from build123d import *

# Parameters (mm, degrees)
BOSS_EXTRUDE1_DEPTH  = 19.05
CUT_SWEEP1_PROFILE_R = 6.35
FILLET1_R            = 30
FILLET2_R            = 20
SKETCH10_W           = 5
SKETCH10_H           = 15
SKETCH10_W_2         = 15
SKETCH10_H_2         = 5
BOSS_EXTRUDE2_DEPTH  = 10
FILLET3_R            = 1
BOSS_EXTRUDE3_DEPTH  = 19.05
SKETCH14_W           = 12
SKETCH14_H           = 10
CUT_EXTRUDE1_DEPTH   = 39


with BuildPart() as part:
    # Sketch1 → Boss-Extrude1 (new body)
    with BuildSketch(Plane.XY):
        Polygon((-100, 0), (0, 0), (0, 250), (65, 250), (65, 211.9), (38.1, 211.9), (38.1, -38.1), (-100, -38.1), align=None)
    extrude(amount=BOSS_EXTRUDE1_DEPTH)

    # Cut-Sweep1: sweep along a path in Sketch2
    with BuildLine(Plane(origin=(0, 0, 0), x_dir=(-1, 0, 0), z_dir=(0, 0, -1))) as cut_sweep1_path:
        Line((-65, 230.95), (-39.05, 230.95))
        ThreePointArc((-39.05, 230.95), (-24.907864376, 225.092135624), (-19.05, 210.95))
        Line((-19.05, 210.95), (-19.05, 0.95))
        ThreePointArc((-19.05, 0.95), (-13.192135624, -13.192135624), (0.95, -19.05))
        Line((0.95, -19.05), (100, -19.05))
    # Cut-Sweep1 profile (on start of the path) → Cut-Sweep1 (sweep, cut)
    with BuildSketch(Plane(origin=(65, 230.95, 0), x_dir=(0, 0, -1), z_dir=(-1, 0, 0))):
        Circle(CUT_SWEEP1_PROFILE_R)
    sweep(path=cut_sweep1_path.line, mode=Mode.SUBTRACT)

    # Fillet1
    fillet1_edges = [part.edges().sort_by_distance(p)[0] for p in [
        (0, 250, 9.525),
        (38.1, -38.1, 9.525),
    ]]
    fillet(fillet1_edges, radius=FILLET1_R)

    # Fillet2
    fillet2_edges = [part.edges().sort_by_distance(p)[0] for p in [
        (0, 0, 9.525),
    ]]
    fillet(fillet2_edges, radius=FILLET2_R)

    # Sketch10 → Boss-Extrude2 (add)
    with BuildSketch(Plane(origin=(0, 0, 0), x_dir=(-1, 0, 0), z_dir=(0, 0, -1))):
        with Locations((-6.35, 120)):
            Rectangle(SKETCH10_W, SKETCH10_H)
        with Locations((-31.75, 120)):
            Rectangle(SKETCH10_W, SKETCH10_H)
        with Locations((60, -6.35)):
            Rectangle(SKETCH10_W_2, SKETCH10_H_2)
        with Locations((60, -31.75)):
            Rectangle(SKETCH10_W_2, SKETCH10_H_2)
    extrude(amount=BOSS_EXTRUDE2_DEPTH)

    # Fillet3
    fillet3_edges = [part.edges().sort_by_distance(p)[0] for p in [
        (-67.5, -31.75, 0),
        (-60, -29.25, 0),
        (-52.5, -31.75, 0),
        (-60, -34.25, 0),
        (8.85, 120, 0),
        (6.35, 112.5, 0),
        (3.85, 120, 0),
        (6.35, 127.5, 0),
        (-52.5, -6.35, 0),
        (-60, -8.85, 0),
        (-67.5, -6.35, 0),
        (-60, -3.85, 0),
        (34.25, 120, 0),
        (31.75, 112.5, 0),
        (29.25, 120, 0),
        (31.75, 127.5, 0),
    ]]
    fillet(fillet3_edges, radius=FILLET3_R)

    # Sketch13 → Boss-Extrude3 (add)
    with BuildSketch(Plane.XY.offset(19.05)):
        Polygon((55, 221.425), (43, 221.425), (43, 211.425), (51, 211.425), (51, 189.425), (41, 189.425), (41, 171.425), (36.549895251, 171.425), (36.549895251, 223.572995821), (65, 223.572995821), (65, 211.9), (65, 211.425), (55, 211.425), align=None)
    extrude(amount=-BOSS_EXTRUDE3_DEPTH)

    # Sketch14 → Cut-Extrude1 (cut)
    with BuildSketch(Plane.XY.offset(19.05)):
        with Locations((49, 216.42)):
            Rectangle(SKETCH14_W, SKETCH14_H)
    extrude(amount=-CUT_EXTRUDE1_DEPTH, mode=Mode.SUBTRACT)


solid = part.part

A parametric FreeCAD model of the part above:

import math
import FreeCAD as App
import Part
import Sketcher


def edges_at(feature, points):
    """Names of the edges that pass closest to the given points."""
    edges = feature.Shape.Edges
    near = lambda p: min(range(len(edges)), key=lambda i: edges[i].distToShape(Part.Vertex(*p))[0])
    return sorted({f"Edge{near(p) + 1}" for p in points})


def add_polygon(sketch, points):
    """Adds a closed chain of lines whose ends are joined by coincident constraints."""
    first, n = sketch.GeometryCount, len(points)
    for a, b in zip(points, points[1:] + points[:1]):
        sketch.addGeometry(Part.LineSegment(App.Vector(*a, 0), App.Vector(*b, 0)), False)
    for i in range(n):
        sketch.addConstraint(Sketcher.Constraint("Coincident", first + i, 2, first + (i + 1) % n, 1))

doc = App.newDocument("Part")
params = doc.addObject("Spreadsheet::Sheet", "Params")
for row, (alias, value) in enumerate([
    ("sketch1_width", "100 mm"),
    ("sketch1_width2", "65 mm"),
    ("sketch1_height", "250 mm"),
    ("sketch1_width3", "138.1 mm"),
    ("sketch1_height2", "38.1 mm"),
    ("pad1_length", "19.05 mm"),
    ("sketch2_diameter", "12.7 mm"),
    ("sketch3_radius", "20 mm"),
    ("sketch3_height", "210 mm"),
    ("sketch3_width", "25.95 mm"),
    ("fillet_radius", "30 mm"),
    ("fillet2_radius", "20 mm"),
    ("sketch4_width", "5 mm"),
    ("sketch4_width2", "15 mm"),
    ("pad2_length", "10 mm"),
    ("fillet3_radius", "1 mm"),
    ("sketch5_width", "12 mm"),
    ("sketch5_width2", "10 mm"),
    ("sketch5_width3", "8 mm"),
    ("sketch5_height", "18 mm"),
    ("sketch5_height2", "22 mm"),
    ("pad3_length", "19.05 mm"),
    ("sketch6_width", "12 mm"),
    ("sketch6_height", "10 mm"),
    ("pocket1_length", "39 mm"),
], start=1):
    params.set(f"A{row}", alias)
    params.set(f"B{row}", "=" + value)
    params.setAlias(f"B{row}", alias)

body = doc.addObject("PartDesign::Body", "Body")

# Sketch on XY plane
sketch1 = body.newObject("Sketcher::SketchObject", "Sketch")
sketch1.AttachmentSupport = (doc.getObject("XY_Plane"), [""])
sketch1.MapMode = "FlatFace"
add_polygon(sketch1, [(0, 0), (-100, 0), (-100, -38), (38, -38), (38, 212), (65, 212), (65, 250), (0, 250)])  # lines 0-7
sketch1.addConstraint([
    Sketcher.Constraint("Horizontal", 0),
    Sketcher.Constraint("Vertical", 1),
    Sketcher.Constraint("Horizontal", 2),
    Sketcher.Constraint("Vertical", 3),
    Sketcher.Constraint("Horizontal", 4),
    Sketcher.Constraint("Vertical", 5),
    Sketcher.Constraint("Horizontal", 6),
    Sketcher.Constraint("Vertical", 7),
    Sketcher.Constraint("Coincident", 7, 2, -1, 1),
    Sketcher.Constraint("Equal", 1, 5),
    Sketcher.Constraint("DistanceX", 0, 2, 0, 1, 100.0),
    Sketcher.Constraint("DistanceX", 6, 2, 6, 1, 65.0),
    Sketcher.Constraint("DistanceY", 3, 1, 3, 2, 250.0),
    Sketcher.Constraint("DistanceX", 2, 1, 2, 2, 138.1),
    Sketcher.Constraint("DistanceY", 1, 2, 1, 1, 38.1),
])
sketch1.setExpression("Constraints[18]", "Params.sketch1_width")
sketch1.setExpression("Constraints[19]", "Params.sketch1_width2")
sketch1.setExpression("Constraints[20]", "Params.sketch1_height")
sketch1.setExpression("Constraints[21]", "Params.sketch1_width3")
sketch1.setExpression("Constraints[22]", "Params.sketch1_height2")
pad1 = body.newObject("PartDesign::Pad", "Pad")
pad1.Profile = sketch1
pad1.setExpression("Length", "Params.pad1_length")

# Sketch on YZ plane
sketch2 = body.newObject("Sketcher::SketchObject", "Sketch001")
sketch2.AttachmentSupport = (doc.getObject("YZ_Plane"), [""])
sketch2.MapMode = "FlatFace"
sketch2.AttachmentOffset = App.Placement(App.Vector(0, 0, 65), App.Rotation())
sketch2.addGeometry(Part.Circle(App.Vector(231, 0, 0), App.Vector(0, 0, 1), 6), False)
sketch2.addConstraint([
    Sketcher.Constraint("PointOnObject", 0, 3, -1),
    Sketcher.Constraint("Diameter", 0, 12.7),
    Sketcher.Constraint("DistanceX", -1, 1, 0, 3, 230.95),
])
sketch2.setExpression("Constraints[1]", "Params.sketch2_diameter")

# Sketch on XY plane
sketch3 = body.newObject("Sketcher::SketchObject", "Sketch002")
sketch3.AttachmentSupport = (doc.getObject("XY_Plane"), [""])
sketch3.MapMode = "FlatFace"
sketch3.addGeometry([
    Part.LineSegment(App.Vector(65, 231, 0), App.Vector(39, 231, 0)),  # 0
    Part.ArcOfCircle(Part.Circle(App.Vector(39, 211, 0), App.Vector(0, 0, 1), 20), math.radians(90), math.radians(180)),  # 1
    Part.LineSegment(App.Vector(19, 211, 0), App.Vector(19, 1, 0)),  # 2
    Part.ArcOfCircle(Part.Circle(App.Vector(-1, 1, 0), App.Vector(0, 0, 1), 20), math.radians(-90), math.radians(0)),  # 3
    Part.LineSegment(App.Vector(-1, -19, 0), App.Vector(-100, -19, 0)),  # 4
], False)
sketch3.addConstraint([
    Sketcher.Constraint("Tangent", 0, 2, 1, 1),
    Sketcher.Constraint("Tangent", 1, 2, 2, 1),
    Sketcher.Constraint("Tangent", 2, 2, 3, 2),
    Sketcher.Constraint("Tangent", 3, 1, 4, 1),
    Sketcher.Constraint("Horizontal", 0),
    Sketcher.Constraint("Vertical", 2),
    Sketcher.Constraint("Horizontal", 4),
    Sketcher.Constraint("Equal", 1, 3),
    Sketcher.Constraint("Radius", 1, 20.0),
    Sketcher.Constraint("DistanceY", 2, 2, 2, 1, 210.0),
    Sketcher.Constraint("DistanceX", -1, 1, 0, 1, 65.0),
    Sketcher.Constraint("DistanceX", 4, 2, -1, 1, 100.0),
    Sketcher.Constraint("DistanceX", 0, 2, 0, 1, 25.95),
    Sketcher.Constraint("DistanceY", -1, 1, 1, 3, 210.95),
])
sketch3.setExpression("Constraints[8]", "Params.sketch3_radius")
sketch3.setExpression("Constraints[9]", "Params.sketch3_height")
sketch3.setExpression("Constraints[12]", "Params.sketch3_width")
doc.recompute()

subtractivepipe = body.newObject("PartDesign::SubtractivePipe", "SubtractivePipe")
subtractivepipe.Profile = sketch2
subtractivepipe.Spine = (sketch3, ["Edge1", "Edge2", "Edge3", "Edge4", "Edge5"])
doc.recompute()

fillet = body.newObject("PartDesign::Fillet", "Fillet")
fillet.Base = (subtractivepipe, edges_at(subtractivepipe, [(0, 250, 9.525), (38.1, -38.1, 9.525)]))
fillet.setExpression("Radius", "Params.fillet_radius")
doc.recompute()

fillet2 = body.newObject("PartDesign::Fillet", "Fillet001")
fillet2.Base = (fillet, edges_at(fillet, [(0, 0, 9.525)]))
fillet2.setExpression("Radius", "Params.fillet2_radius")

# Sketch on XY plane
sketch4 = body.newObject("Sketcher::SketchObject", "Sketch003")
sketch4.AttachmentSupport = (doc.getObject("XY_Plane"), [""])
sketch4.MapMode = "FlatFace"
add_polygon(sketch4, [(9, 128), (9, 112), (4, 112), (4, 128)])  # lines 0-3
add_polygon(sketch4, [(34, 128), (34, 112), (29, 112), (29, 128)])  # lines 4-7
add_polygon(sketch4, [(-52, -4), (-52, -9), (-68, -9), (-68, -4)])  # lines 8-11
add_polygon(sketch4, [(-52, -29), (-52, -34), (-68, -34), (-68, -29)])  # lines 12-15
sketch4.addConstraint([
    Sketcher.Constraint("Vertical", 0),
    Sketcher.Constraint("Horizontal", 1),
    Sketcher.Constraint("Vertical", 2),
    Sketcher.Constraint("Horizontal", 3),
    Sketcher.Constraint("Vertical", 4),
    Sketcher.Constraint("Horizontal", 5),
    Sketcher.Constraint("Vertical", 6),
    Sketcher.Constraint("Horizontal", 7),
    Sketcher.Constraint("Vertical", 8),
    Sketcher.Constraint("Horizontal", 9),
    Sketcher.Constraint("Vertical", 10),
    Sketcher.Constraint("Horizontal", 11),
    Sketcher.Constraint("Vertical", 12),
    Sketcher.Constraint("Horizontal", 13),
    Sketcher.Constraint("Vertical", 14),
    Sketcher.Constraint("Horizontal", 15),
    Sketcher.Constraint("Horizontal", 1, 2, 4, 2),
    Sketcher.Constraint("Horizontal", 3, 2, 6, 2),
    Sketcher.Constraint("Vertical", 11, 2, 12, 2),
    Sketcher.Constraint("Vertical", 10, 2, 13, 2),
    Sketcher.Constraint("Equal", 3, 5),
    Sketcher.Constraint("Equal", 15, 0),
    Sketcher.Constraint("Equal", 7, 8),
    Sketcher.Constraint("Equal", 10, 12),
    Sketcher.Constraint("DistanceX", 1, 2, 1, 1, 5.0),
    Sketcher.Constraint("DistanceX", 9, 2, 9, 1, 15.0),
    Sketcher.Constraint("DistanceY", -1, 1, 0, 2, 112.5),
    Sketcher.Constraint("DistanceX", 8, 2, -1, 1, 52.5),
    Sketcher.Constraint("DistanceX", 0, 2, 4, 2, 25.4),
    Sketcher.Constraint("DistanceY", 12, 2, 8, 2, 25.4),
    Sketcher.Constraint("DistanceX", -1, 1, 0, 2, 8.85),
    Sketcher.Constraint("DistanceY", 8, 2, -1, 1, 8.85),
])
sketch4.setExpression("Constraints[40]", "Params.sketch4_width")
sketch4.setExpression("Constraints[41]", "Params.sketch4_width2")
pad2 = body.newObject("PartDesign::Pad", "Pad001")
pad2.Profile = sketch4
pad2.setExpression("Length", "Params.pad2_length")
pad2.Reversed = True
doc.recompute()

fillet3 = body.newObject("PartDesign::Fillet", "Fillet002")
fillet3.Base = (pad2, edges_at(pad2, [
    (-67.5, -31.75, 0),
    (-60, -29.25, 0),
    (-52.5, -31.75, 0),
    (-60, -34.25, 0),
    (8.85, 120, 0),
    (6.35, 112.5, 0),
    (3.85, 120, 0),
    (6.35, 127.5, 0),
    (-52.5, -6.35, 0),
    (-60, -8.85, 0),
    (-67.5, -6.35, 0),
    (-60, -3.85, 0),
    (34.25, 120, 0),
    (31.75, 112.5, 0),
    (29.25, 120, 0),
    (31.75, 127.5, 0),
]))
fillet3.setExpression("Radius", "Params.fillet3_radius")

# Sketch on XY plane
sketch5 = body.newObject("Sketcher::SketchObject", "Sketch004")
sketch5.AttachmentSupport = (doc.getObject("XY_Plane"), [""])
sketch5.MapMode = "FlatFace"
sketch5.AttachmentOffset = App.Placement(App.Vector(0, 0, 19.05), App.Rotation())
add_polygon(sketch5, [(43, 221.4), (55, 221.4), (55, 211.4), (65, 211.4), (65, 223.6), (36.5, 223.6), (36.5, 171.4), (41, 171.4), (41, 189.4), (51, 189.4), (51, 211.4), (43, 211.4)])  # lines 0-11
sketch5.addConstraint([
    Sketcher.Constraint("Horizontal", 0),
    Sketcher.Constraint("Vertical", 1),
    Sketcher.Constraint("Horizontal", 2),
    Sketcher.Constraint("Vertical", 3),
    Sketcher.Constraint("Horizontal", 4),
    Sketcher.Constraint("Vertical", 5),
    Sketcher.Constraint("Horizontal", 6),
    Sketcher.Constraint("Vertical", 7),
    Sketcher.Constraint("Horizontal", 8),
    Sketcher.Constraint("Vertical", 9),
    Sketcher.Constraint("Horizontal", 10),
    Sketcher.Constraint("Vertical", 11),
    Sketcher.Constraint("Horizontal", 2, 2, 9, 2),
    Sketcher.Constraint("Equal", 2, 8),
    Sketcher.Constraint("Equal", 8, 1),
    Sketcher.Constraint("DistanceX", 0, 1, 0, 2, 12.0),
    Sketcher.Constraint("DistanceX", 2, 1, 2, 2, 10.0),
    Sketcher.Constraint("DistanceX", 10, 2, 10, 1, 8.0),
    Sketcher.Constraint("DistanceY", 7, 1, 7, 2, 18.0),
    Sketcher.Constraint("DistanceY", 9, 1, 9, 2, 22.0),
    Sketcher.Constraint("DistanceX", -1, 1, 0, 2, 55.0),
    Sketcher.Constraint("DistanceY", -1, 1, 0, 2, 221.425),
    Sketcher.Constraint("DistanceX", 4, 2, 4, 1, 28.450105),
    Sketcher.Constraint("DistanceY", 3, 1, 3, 2, 12.147996),
])
sketch5.setExpression("Constraints[27]", "Params.sketch5_width")
sketch5.setExpression("Constraints[28]", "Params.sketch5_width2")
sketch5.setExpression("Constraints[29]", "Params.sketch5_width3")
sketch5.setExpression("Constraints[30]", "Params.sketch5_height")
sketch5.setExpression("Constraints[31]", "Params.sketch5_height2")
pad3 = body.newObject("PartDesign::Pad", "Pad002")
pad3.Profile = sketch5
pad3.setExpression("Length", "Params.pad3_length")
pad3.Reversed = True

# Sketch on XY plane
sketch6 = body.newObject("Sketcher::SketchObject", "Sketch005")
sketch6.AttachmentSupport = (doc.getObject("XY_Plane"), [""])
sketch6.MapMode = "FlatFace"
sketch6.AttachmentOffset = App.Placement(App.Vector(0, 0, 19.05), App.Rotation())
add_polygon(sketch6, [(43, 221), (43, 211), (55, 211), (55, 221)])  # lines 0-3
sketch6.addConstraint([
    Sketcher.Constraint("Vertical", 0),
    Sketcher.Constraint("Horizontal", 1),
    Sketcher.Constraint("Vertical", 2),
    Sketcher.Constraint("Horizontal", 3),
    Sketcher.Constraint("DistanceX", 1, 1, 1, 2, 12.0),
    Sketcher.Constraint("DistanceY", 0, 2, 0, 1, 10.0),
    Sketcher.Constraint("DistanceX", -1, 1, 0, 2, 43.0),
    Sketcher.Constraint("DistanceY", -1, 1, 0, 2, 211.42),
])
sketch6.setExpression("Constraints[8]", "Params.sketch6_width")
sketch6.setExpression("Constraints[9]", "Params.sketch6_height")
pocket1 = body.newObject("PartDesign::Pocket", "Pocket")
pocket1.Profile = sketch6
pocket1.setExpression("Length", "Params.pocket1_length")

doc.recompute()
